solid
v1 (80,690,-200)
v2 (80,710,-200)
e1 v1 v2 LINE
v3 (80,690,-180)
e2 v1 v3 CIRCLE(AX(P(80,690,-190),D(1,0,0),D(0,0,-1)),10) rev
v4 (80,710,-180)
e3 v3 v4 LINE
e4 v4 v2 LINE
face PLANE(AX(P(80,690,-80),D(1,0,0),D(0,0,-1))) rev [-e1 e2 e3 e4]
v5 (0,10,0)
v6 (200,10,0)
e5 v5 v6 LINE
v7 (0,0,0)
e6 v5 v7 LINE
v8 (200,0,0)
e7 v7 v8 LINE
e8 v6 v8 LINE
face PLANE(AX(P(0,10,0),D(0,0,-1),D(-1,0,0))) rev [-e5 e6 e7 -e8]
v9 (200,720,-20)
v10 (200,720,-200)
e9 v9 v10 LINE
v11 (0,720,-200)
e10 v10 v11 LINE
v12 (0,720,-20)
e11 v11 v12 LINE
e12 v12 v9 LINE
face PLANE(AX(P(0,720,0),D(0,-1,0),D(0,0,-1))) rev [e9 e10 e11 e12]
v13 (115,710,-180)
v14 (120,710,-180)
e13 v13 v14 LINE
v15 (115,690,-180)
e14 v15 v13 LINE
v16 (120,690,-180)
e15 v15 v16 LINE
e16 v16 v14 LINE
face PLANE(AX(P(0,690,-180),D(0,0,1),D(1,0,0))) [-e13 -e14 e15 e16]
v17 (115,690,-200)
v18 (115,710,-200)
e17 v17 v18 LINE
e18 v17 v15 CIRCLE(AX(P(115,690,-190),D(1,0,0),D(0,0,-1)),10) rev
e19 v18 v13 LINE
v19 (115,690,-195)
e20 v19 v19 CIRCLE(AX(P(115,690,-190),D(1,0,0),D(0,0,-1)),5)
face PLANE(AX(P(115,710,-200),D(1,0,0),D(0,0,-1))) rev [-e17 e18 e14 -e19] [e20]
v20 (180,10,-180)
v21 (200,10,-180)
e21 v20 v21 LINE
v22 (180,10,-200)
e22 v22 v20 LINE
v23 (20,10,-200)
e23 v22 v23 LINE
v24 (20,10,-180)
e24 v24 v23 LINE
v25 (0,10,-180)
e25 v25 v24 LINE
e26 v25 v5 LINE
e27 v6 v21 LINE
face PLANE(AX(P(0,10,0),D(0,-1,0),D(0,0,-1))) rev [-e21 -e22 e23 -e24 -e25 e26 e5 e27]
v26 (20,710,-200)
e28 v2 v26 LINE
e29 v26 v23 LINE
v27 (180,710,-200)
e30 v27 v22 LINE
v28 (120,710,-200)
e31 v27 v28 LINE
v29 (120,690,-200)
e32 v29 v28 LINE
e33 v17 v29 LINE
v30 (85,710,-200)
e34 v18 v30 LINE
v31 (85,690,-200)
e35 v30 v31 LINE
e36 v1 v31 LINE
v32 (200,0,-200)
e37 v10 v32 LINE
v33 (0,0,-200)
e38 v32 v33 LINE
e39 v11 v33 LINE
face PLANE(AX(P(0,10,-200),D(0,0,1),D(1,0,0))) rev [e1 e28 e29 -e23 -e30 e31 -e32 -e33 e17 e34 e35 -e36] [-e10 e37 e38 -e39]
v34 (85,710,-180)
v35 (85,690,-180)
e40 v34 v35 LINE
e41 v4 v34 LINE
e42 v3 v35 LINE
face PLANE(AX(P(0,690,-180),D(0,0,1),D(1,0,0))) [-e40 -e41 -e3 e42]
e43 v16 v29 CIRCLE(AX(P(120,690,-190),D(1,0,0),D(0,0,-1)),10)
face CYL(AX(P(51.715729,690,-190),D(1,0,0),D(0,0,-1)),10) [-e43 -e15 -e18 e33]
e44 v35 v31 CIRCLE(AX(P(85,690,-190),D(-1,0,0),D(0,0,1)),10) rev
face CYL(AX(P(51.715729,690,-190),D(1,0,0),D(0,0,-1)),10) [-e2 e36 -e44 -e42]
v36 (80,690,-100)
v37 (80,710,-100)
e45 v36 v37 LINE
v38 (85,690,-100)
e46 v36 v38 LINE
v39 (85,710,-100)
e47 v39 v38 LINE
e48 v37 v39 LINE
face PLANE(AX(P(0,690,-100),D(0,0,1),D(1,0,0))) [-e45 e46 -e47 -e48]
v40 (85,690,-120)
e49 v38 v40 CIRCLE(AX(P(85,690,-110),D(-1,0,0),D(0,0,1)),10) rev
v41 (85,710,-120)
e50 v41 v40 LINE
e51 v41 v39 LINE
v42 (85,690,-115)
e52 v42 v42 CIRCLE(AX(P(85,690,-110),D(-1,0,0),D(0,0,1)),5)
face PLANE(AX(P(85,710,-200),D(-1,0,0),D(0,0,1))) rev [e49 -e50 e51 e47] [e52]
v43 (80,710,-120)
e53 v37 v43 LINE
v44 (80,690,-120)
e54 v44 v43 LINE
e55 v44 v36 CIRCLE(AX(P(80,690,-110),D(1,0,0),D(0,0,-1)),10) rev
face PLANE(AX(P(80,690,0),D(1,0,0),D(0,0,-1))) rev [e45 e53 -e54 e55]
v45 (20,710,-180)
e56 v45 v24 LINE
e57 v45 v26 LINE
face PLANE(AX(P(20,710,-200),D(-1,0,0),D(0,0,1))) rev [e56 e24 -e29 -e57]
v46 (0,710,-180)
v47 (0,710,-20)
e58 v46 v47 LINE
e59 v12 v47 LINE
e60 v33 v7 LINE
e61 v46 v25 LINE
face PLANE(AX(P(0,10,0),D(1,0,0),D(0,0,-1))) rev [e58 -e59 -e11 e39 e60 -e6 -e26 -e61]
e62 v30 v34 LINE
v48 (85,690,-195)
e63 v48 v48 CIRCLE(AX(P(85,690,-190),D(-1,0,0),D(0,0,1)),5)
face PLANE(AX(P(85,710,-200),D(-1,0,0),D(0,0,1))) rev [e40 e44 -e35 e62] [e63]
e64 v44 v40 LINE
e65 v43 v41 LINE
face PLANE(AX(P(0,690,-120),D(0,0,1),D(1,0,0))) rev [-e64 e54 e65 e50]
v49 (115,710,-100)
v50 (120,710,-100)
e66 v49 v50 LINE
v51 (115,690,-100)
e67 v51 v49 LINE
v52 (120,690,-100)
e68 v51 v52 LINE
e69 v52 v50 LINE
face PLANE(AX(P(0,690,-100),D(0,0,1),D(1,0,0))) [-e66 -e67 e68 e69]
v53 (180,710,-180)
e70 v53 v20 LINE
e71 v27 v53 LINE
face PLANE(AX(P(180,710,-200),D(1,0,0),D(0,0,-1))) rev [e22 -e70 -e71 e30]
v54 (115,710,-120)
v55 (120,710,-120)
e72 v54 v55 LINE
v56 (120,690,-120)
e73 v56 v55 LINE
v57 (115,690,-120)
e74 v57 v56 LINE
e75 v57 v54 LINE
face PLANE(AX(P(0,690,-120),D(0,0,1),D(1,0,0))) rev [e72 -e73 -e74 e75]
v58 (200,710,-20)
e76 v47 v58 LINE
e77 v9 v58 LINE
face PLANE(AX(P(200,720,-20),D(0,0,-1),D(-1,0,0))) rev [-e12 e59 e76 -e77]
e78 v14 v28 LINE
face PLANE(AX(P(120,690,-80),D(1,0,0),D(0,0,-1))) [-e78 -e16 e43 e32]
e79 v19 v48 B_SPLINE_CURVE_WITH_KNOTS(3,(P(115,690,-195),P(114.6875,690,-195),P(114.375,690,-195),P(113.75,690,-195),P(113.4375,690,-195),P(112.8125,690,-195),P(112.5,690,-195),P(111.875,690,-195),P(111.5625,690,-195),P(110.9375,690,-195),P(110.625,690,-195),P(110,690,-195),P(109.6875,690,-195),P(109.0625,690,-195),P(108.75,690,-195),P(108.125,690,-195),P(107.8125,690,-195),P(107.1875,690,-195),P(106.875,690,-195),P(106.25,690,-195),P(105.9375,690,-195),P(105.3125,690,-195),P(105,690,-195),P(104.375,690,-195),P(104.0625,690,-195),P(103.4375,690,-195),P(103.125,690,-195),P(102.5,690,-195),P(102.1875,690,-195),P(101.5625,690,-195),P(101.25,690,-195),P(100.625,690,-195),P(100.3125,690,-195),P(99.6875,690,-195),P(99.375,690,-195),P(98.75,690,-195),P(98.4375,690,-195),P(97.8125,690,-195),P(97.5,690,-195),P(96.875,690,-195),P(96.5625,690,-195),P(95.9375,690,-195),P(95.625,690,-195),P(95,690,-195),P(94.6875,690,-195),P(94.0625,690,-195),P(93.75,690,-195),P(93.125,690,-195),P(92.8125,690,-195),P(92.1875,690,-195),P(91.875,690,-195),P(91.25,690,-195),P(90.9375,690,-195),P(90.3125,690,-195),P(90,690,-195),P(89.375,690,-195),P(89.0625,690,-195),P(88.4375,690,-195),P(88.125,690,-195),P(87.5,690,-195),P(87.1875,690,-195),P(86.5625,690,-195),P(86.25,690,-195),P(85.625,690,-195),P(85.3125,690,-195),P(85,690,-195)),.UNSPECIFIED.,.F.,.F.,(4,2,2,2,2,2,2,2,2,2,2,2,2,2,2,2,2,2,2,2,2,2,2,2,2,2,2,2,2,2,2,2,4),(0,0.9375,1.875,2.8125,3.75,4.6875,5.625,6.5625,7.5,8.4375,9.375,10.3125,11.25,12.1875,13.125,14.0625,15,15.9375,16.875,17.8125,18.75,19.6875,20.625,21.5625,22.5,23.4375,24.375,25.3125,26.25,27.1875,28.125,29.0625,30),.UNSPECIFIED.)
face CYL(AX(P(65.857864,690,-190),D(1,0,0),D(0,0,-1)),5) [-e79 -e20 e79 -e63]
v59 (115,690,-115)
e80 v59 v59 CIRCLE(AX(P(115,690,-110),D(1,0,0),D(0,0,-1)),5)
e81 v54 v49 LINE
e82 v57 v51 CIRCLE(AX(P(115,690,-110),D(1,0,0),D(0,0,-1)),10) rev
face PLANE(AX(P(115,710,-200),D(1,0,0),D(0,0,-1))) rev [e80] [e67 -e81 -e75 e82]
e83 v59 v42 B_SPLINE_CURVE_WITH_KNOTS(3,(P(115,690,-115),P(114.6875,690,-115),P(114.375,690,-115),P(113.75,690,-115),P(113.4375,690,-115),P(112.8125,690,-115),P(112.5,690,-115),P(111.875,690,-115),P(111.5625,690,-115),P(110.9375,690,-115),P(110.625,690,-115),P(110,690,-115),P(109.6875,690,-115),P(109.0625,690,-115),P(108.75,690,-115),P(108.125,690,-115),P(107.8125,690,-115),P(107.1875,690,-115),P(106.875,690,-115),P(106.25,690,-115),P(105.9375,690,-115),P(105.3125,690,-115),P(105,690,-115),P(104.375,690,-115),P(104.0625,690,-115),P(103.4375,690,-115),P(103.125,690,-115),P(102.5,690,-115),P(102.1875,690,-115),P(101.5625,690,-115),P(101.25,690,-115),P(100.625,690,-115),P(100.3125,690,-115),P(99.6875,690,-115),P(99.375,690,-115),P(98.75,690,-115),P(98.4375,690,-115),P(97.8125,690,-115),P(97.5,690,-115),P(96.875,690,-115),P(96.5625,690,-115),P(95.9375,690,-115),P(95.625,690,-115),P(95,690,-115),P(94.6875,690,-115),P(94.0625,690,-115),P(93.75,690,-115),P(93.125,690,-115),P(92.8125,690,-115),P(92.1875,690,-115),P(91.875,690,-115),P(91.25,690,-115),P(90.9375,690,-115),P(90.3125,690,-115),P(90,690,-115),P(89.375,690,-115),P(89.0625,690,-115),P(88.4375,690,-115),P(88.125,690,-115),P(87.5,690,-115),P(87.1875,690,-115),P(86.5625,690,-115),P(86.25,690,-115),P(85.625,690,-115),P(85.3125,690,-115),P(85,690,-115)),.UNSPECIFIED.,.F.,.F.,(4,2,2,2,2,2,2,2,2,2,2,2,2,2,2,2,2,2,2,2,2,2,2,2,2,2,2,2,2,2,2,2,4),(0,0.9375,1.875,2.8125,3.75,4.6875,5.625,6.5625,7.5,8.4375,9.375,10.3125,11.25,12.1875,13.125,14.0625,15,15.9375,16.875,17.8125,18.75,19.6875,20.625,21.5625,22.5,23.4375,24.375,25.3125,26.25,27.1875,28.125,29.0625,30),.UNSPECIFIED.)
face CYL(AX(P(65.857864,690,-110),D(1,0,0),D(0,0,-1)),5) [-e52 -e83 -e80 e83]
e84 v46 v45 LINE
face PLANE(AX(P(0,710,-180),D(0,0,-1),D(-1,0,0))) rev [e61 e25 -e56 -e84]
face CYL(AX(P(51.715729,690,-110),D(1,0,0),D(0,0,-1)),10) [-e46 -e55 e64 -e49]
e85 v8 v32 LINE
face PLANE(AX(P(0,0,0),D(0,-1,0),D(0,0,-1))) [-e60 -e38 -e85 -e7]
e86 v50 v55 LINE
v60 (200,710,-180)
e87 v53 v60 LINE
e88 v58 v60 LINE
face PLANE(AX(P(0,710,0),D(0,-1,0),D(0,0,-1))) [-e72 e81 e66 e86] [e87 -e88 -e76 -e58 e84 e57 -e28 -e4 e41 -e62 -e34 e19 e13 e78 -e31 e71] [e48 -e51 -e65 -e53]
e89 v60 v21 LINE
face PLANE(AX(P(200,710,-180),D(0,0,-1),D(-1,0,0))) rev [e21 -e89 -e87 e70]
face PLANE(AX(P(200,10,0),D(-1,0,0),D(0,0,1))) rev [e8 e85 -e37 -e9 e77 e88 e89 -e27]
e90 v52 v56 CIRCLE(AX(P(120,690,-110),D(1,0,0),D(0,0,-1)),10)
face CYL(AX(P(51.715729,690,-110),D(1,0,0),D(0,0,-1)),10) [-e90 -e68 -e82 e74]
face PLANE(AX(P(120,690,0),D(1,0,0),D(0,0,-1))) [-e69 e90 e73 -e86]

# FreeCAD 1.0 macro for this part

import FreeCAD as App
import Part
import Sketcher

V = App.Vector
Q = App.Units.Quantity


def add_polygon(sketch, points):
    """Adds a closed chain of lines whose ends are joined by coincident constraints."""
    first, n = sketch.GeometryCount, len(points)
    for a, b in zip(points, points[1:] + points[:1]):
        sketch.addGeometry(Part.LineSegment(App.Vector(*a, 0), App.Vector(*b, 0)), False)
    for i in range(n):
        sketch.addConstraint(Sketcher.Constraint("Coincident", first + i, 2, first + (i + 1) % n, 1))

doc = App.newDocument("Part")
body = doc.addObject("PartDesign::Body", "Body")

sketch1 = body.newObject("Sketcher::SketchObject", "Sketch")
sketch1.AttachmentSupport = (doc.getObject("XZ_Plane"), [""])
sketch1.MapMode = "FlatFace"
add_polygon(sketch1, [(0, -200), (0, 0), (200, 0), (200, -200)])
sketch1.addConstraint([
    Sketcher.Constraint("Vertical", 0),
    Sketcher.Constraint("Horizontal", 1),
    Sketcher.Constraint("Vertical", 2),
    Sketcher.Constraint("Horizontal", 3),
    Sketcher.Constraint("Coincident", 0, 2, -1, 1),
    Sketcher.Constraint("Equal", 3, 0),
    Sketcher.Constraint("DistanceX", 1, 1, 1, 2, Q("200 mm")),
])
pad1 = body.newObject("PartDesign::Pad", "Pad")
pad1.Profile = sketch1
pad1.Length = 10
pad1.Reversed = True

sketch2 = body.newObject("Sketcher::SketchObject", "Sketch001")
sketch2.AttachmentSupport = (doc.getObject("XZ_Plane"), [""])
sketch2.MapMode = "FlatFace"
sketch2.AttachmentOffset = App.Placement(V(0, 0, -10), App.Rotation())
add_polygon(sketch2, [(180, -200), (180, -180), (200, -180), (200, -200)])
add_polygon(sketch2, [(0, -200), (0, -180), (20, -180), (20, -200)])
sketch2.addConstraint([
    Sketcher.Constraint("Vertical", 0),
    Sketcher.Constraint("Horizontal", 1),
    Sketcher.Constraint("Vertical", 2),
    Sketcher.Constraint("Horizontal", 3),
    Sketcher.Constraint("Vertical", 4),
    Sketcher.Constraint("Horizontal", 5),
    Sketcher.Constraint("Vertical", 6),
    Sketcher.Constraint("Horizontal", 7),
    Sketcher.Constraint("PointOnObject", 4, 2, -2),
    Sketcher.Constraint("Horizontal", 1, 2, 4, 2),
    Sketcher.Constraint("Horizontal", 3, 2, 6, 2),
    Sketcher.Constraint("Equal", 3, 5),
    Sketcher.Constraint("Equal", 7, 0),
    Sketcher.Constraint("DistanceX", 1, 1, 1, 2, Q("20 mm")),
    Sketcher.Constraint("DistanceX", -1, 1, 0, 2, Q("180 mm")),
    Sketcher.Constraint("DistanceY", 0, 2, -1, 1, Q("180 mm")),
])
pad2 = body.newObject("PartDesign::Pad", "Pad001")
pad2.Profile = sketch2
pad2.Length = 700
pad2.Reversed = True

sketch3 = body.newObject("Sketcher::SketchObject", "Sketch002")
sketch3.AttachmentSupport = (doc.getObject("XZ_Plane"), [""])
sketch3.MapMode = "FlatFace"
sketch3.AttachmentOffset = App.Placement(V(0, 0, -710), App.Rotation())
add_polygon(sketch3, [(0, -200), (0, -20), (200, -20), (200, -200)])
sketch3.addConstraint([
    Sketcher.Constraint("Vertical", 0),
    Sketcher.Constraint("Horizontal", 1),
    Sketcher.Constraint("Vertical", 2),
    Sketcher.Constraint("Horizontal", 3),
    Sketcher.Constraint("PointOnObject", 0, 2, -2),
    Sketcher.Constraint("DistanceX", 1, 1, 1, 2, Q("200 mm")),
    Sketcher.Constraint("DistanceY", 0, 1, 0, 2, Q("180 mm")),
    Sketcher.Constraint("DistanceY", 0, 2, -1, 1, Q("20 mm")),
])
pad3 = body.newObject("PartDesign::Pad", "Pad002")
pad3.Profile = sketch3
pad3.Length = 10
pad3.Reversed = True

sketch4 = body.newObject("Sketcher::SketchObject", "Sketch003")
sketch4.AttachmentSupport = (doc.getObject("XZ_Plane"), [""])
sketch4.MapMode = "FlatFace"
sketch4.AttachmentOffset = App.Placement(V(0, 0, -710), App.Rotation())
add_polygon(sketch4, [(80, -100), (80, -120), (120, -120), (120, -100)])
sketch4.addConstraint([
    Sketcher.Constraint("Vertical", 0),
    Sketcher.Constraint("Horizontal", 1),
    Sketcher.Constraint("Vertical", 2),
    Sketcher.Constraint("Horizontal", 3),
    Sketcher.Constraint("DistanceX", 1, 1, 1, 2, Q("40 mm")),
    Sketcher.Constraint("DistanceY", 0, 2, 0, 1, Q("20 mm")),
    Sketcher.Constraint("DistanceX", -1, 1, 0, 2, Q("80 mm")),
    Sketcher.Constraint("DistanceY", 0, 2, -1, 1, Q("120 mm")),
])
pad4 = body.newObject("PartDesign::Pad", "Pad003")
pad4.Profile = sketch4
pad4.Length = 20

sketch5 = body.newObject("Sketcher::SketchObject", "Sketch004")
sketch5.AttachmentSupport = (doc.getObject("YZ_Plane"), [""])
sketch5.MapMode = "FlatFace"
sketch5.AttachmentOffset = App.Placement(V(0, 0, 120), App.Rotation())
sketch5.addGeometry(Part.Circle(V(690, -110, 0), V(0, 0, 1), 10), False)
sketch5.addConstraint([
    Sketcher.Constraint("Diameter", 0, Q("20 mm")),
    Sketcher.Constraint("DistanceX", -1, 1, 0, 3, Q("690 mm")),
    Sketcher.Constraint("DistanceY", 0, 3, -1, 1, Q("110 mm")),
])
pad5 = body.newObject("PartDesign::Pad", "Pad004")
pad5.Profile = sketch5
pad5.Length = 40
pad5.Reversed = True

sketch6 = body.newObject("Sketcher::SketchObject", "Sketch005")
sketch6.AttachmentSupport = (doc.getObject("XY_Plane"), [""])
sketch6.MapMode = "FlatFace"
sketch6.AttachmentOffset = App.Placement(V(0, 0, -100), App.Rotation())
add_polygon(sketch6, [(85, 710), (85, 670), (115, 670), (115, 710)])
sketch6.addConstraint([
    Sketcher.Constraint("Vertical", 0),
    Sketcher.Constraint("Horizontal", 1),
    Sketcher.Constraint("Vertical", 2),
    Sketcher.Constraint("Horizontal", 3),
    Sketcher.Constraint("DistanceX", 1, 1, 1, 2, Q("30 mm")),
    Sketcher.Constraint("DistanceX", -1, 1, 0, 2, Q("85 mm")),
    Sketcher.Constraint("DistanceY", -1, 1, 2, 2, Q("710 mm")),
    Sketcher.Constraint("DistanceY", 0, 2, 0, 1, Q("40.281697 mm")),
])
pocket1 = body.newObject("PartDesign::Pocket", "Pocket")
pocket1.Profile = sketch6
pocket1.Type = "ThroughAll"

sketch7 = body.newObject("Sketcher::SketchObject", "Sketch006")
sketch7.AttachmentSupport = (doc.getObject("YZ_Plane"), [""])
sketch7.MapMode = "FlatFace"
sketch7.AttachmentOffset = App.Placement(V(0, 0, 120), App.Rotation())
sketch7.addGeometry(Part.Circle(V(690, -110, 0), V(0, 0, 1), 5), False)
sketch7.addConstraint([
    Sketcher.Constraint("Diameter", 0, Q("10 mm")),
    Sketcher.Constraint("DistanceX", -1, 1, 0, 3, Q("690 mm")),
    Sketcher.Constraint("DistanceY", 0, 3, -1, 1, Q("110 mm")),
])
pad6 = body.newObject("PartDesign::Pad", "Pad005")
pad6.Profile = sketch7
pad6.Length = 40
pad6.Reversed = True
doc.recompute()

linearpattern = body.newObject("PartDesign::LinearPattern", "LinearPattern")
linearpattern.Originals = [pad4, pad5, pocket1, pad6]
linearpattern.Direction = (doc.getObject("Z_Axis"), [""])
linearpattern.Mode = "offset"
linearpattern.Offset = 80
linearpattern.Occurrences = 2
linearpattern.Reversed = True
body.Tip = linearpattern

doc.recompute()
